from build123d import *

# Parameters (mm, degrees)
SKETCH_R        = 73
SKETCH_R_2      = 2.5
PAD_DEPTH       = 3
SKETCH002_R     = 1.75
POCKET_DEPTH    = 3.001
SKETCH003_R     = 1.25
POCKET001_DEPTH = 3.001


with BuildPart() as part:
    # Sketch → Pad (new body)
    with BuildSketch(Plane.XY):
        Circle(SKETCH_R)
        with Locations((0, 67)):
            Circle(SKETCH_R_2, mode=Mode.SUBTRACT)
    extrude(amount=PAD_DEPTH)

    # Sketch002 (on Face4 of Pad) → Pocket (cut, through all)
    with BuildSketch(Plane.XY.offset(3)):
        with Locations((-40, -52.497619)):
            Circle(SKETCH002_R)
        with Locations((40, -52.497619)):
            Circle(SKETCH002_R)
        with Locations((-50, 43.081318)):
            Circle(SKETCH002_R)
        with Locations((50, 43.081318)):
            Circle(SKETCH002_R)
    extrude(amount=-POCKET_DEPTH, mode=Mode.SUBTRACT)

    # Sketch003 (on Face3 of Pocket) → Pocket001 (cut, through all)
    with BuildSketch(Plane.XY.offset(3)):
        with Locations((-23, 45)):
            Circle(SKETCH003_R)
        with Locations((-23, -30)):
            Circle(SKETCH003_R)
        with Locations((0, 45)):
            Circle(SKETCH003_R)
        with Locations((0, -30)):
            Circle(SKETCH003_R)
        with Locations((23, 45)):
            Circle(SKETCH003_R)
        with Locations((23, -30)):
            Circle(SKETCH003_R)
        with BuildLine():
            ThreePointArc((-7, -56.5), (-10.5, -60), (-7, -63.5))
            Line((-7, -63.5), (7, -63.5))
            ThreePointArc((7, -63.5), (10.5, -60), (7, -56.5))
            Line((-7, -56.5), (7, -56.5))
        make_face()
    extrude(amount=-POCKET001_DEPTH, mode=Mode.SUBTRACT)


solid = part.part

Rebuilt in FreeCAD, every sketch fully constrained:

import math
import FreeCAD as App
import Part
import Sketcher
from FreeCAD import Vector
Q = App.Units.Quantity

doc = App.newDocument("Part")
body = doc.addObject("PartDesign::Body", "Body")

sketch1 = body.newObject("Sketcher::SketchObject", "Sketch")
sketch1.AttachmentSupport = (doc.getObject("XY_Plane"), [""])
sketch1.MapMode = "FlatFace"
sketch1.addGeometry([
    Part.Circle(Vector(0, 0, 0), Vector(0, 0, 1), 73),
    Part.Circle(Vector(0, 67, 0), Vector(0, 0, 1), 2.5),
], False)
sketch1.addConstraint([
    Sketcher.Constraint("Coincident", 0, 3, -1, 1),
    Sketcher.Constraint("PointOnObject", 1, 3, -2),
    Sketcher.Constraint("Diameter", 0, Q("146 mm")),
    Sketcher.Constraint("Diameter", 1, Q("5 mm")),
    Sketcher.Constraint("DistanceY", -1, 1, 1, 3, Q("67 mm")),
])
pad1 = body.newObject("PartDesign::Pad", "Pad")
pad1.Profile = sketch1
pad1.Length = 3

sketch2 = body.newObject("Sketcher::SketchObject", "Sketch001")
sketch2.AttachmentSupport = (doc.getObject("XY_Plane"), [""])
sketch2.MapMode = "FlatFace"
sketch2.AttachmentOffset = App.Placement(Vector(0, 0, 3), App.Rotation())
sketch2.addGeometry([
    Part.Circle(Vector(-40, -52.5, 0), Vector(0, 0, 1), 1.8),
    Part.Circle(Vector(40, -52.5, 0), Vector(0, 0, 1), 1.8),
    Part.Circle(Vector(-50, 43.1, 0), Vector(0, 0, 1), 1.8),
    Part.Circle(Vector(50, 43.1, 0), Vector(0, 0, 1), 1.8),
], False)
sketch2.addConstraint([
    Sketcher.Constraint("Equal", 0, 1),
    Sketcher.Constraint("Equal", 1, 2),
    Sketcher.Constraint("Equal", 2, 3),
    Sketcher.Constraint("Symmetric", 0, 3, 1, 3, -2),
    Sketcher.Constraint("Symmetric", 2, 3, 3, 3, -2),
    Sketcher.Constraint("Diameter", 0, Q("3.5 mm")),
    Sketcher.Constraint("DistanceX", 0, 3, -1, 1, Q("40 mm")),
    Sketcher.Constraint("DistanceX", 2, 3, -1, 1, Q("50 mm")),
    Sketcher.Constraint("DistanceY", 0, 3, -1, 1, Q("52.497619 mm")),
    Sketcher.Constraint("DistanceY", -1, 1, 2, 3, Q("43.081318 mm")),
])
pocket1 = body.newObject("PartDesign::Pocket", "Pocket")
pocket1.Profile = sketch2
pocket1.Type = "ThroughAll"

sketch3 = body.newObject("Sketcher::SketchObject", "Sketch002")
sketch3.AttachmentSupport = (doc.getObject("XY_Plane"), [""])
sketch3.MapMode = "FlatFace"
sketch3.AttachmentOffset = App.Placement(Vector(0, 0, 3), App.Rotation())
sketch3.addGeometry([
    Part.Circle(Vector(-23, 45, 0), Vector(0, 0, 1), 1.2),
    Part.Circle(Vector(-23, -30, 0), Vector(0, 0, 1), 1.2),
    Part.Circle(Vector(0, 45, 0), Vector(0, 0, 1), 1.2),
    Part.Circle(Vector(0, -30, 0), Vector(0, 0, 1), 1.2),
    Part.Circle(Vector(23, 45, 0), Vector(0, 0, 1), 1.2),
    Part.Circle(Vector(23, -30, 0), Vector(0, 0, 1), 1.2),
    Part.ArcOfCircle(Part.Circle(Vector(-7, -60, 0), Vector(0, 0, 1), 3.5), math.radians(90), math.radians(270)),
    Part.LineSegment(Vector(-7, -63.5, 0), Vector(7, -63.5, 0)),
    Part.ArcOfCircle(Part.Circle(Vector(7, -60, 0), Vector(0, 0, 1), 3.5), math.radians(-90), math.radians(90)),
    Part.LineSegment(Vector(7, -56.5, 0), Vector(-7, -56.5, 0)),
], False)
sketch3.addConstraint([
    Sketcher.Constraint("Tangent", 6, 2, 7, 1),
    Sketcher.Constraint("Tangent", 7, 2, 8, 1),
    Sketcher.Constraint("Tangent", 8, 2, 9, 1),
    Sketcher.Constraint("Tangent", 9, 2, 6, 1),
    Sketcher.Constraint("Horizontal", 7),
    Sketcher.Constraint("Horizontal", 9),
    Sketcher.Constraint("Equal", 0, 1),
    Sketcher.Constraint("Equal", 1, 2),
    Sketcher.Constraint("Equal", 2, 3),
    Sketcher.Constraint("Equal", 3, 4),
    Sketcher.Constraint("Equal", 4, 5),
    Sketcher.Constraint("Symmetric", 0, 3, 4, 3, -2),
    Sketcher.Constraint("Symmetric", 1, 3, 5, 3, -2),
    Sketcher.Constraint("PointOnObject", 2, 3, -2),
    Sketcher.Constraint("PointOnObject", 3, 3, -2),
    Sketcher.Constraint("Horizontal", 0, 3, 2, 3),
    Sketcher.Constraint("Horizontal", 1, 3, 3, 3),
    Sketcher.Constraint("Vertical", 0, 3, 1, 3),
    Sketcher.Constraint("Diameter", 0, Q("2.5 mm")),
    Sketcher.Constraint("Radius", 6, Q("3.5 mm")),
    Sketcher.Constraint("DistanceX", 7, 1, 7, 2, Q("14 mm")),
    Sketcher.Constraint("DistanceX", 0, 3, -1, 1, Q("23 mm")),
    Sketcher.Constraint("DistanceY", -1, 1, 0, 3, Q("45 mm")),
    Sketcher.Constraint("DistanceY", 1, 3, -1, 1, Q("30 mm")),
    Sketcher.Constraint("DistanceX", 6, 3, -1, 1, Q("7 mm")),
    Sketcher.Constraint("DistanceY", 6, 3, -1, 1, Q("60 mm")),
])
pocket2 = body.newObject("PartDesign::Pocket", "Pocket001")
pocket2.Profile = sketch3
pocket2.Type = "ThroughAll"

doc.recompute()
